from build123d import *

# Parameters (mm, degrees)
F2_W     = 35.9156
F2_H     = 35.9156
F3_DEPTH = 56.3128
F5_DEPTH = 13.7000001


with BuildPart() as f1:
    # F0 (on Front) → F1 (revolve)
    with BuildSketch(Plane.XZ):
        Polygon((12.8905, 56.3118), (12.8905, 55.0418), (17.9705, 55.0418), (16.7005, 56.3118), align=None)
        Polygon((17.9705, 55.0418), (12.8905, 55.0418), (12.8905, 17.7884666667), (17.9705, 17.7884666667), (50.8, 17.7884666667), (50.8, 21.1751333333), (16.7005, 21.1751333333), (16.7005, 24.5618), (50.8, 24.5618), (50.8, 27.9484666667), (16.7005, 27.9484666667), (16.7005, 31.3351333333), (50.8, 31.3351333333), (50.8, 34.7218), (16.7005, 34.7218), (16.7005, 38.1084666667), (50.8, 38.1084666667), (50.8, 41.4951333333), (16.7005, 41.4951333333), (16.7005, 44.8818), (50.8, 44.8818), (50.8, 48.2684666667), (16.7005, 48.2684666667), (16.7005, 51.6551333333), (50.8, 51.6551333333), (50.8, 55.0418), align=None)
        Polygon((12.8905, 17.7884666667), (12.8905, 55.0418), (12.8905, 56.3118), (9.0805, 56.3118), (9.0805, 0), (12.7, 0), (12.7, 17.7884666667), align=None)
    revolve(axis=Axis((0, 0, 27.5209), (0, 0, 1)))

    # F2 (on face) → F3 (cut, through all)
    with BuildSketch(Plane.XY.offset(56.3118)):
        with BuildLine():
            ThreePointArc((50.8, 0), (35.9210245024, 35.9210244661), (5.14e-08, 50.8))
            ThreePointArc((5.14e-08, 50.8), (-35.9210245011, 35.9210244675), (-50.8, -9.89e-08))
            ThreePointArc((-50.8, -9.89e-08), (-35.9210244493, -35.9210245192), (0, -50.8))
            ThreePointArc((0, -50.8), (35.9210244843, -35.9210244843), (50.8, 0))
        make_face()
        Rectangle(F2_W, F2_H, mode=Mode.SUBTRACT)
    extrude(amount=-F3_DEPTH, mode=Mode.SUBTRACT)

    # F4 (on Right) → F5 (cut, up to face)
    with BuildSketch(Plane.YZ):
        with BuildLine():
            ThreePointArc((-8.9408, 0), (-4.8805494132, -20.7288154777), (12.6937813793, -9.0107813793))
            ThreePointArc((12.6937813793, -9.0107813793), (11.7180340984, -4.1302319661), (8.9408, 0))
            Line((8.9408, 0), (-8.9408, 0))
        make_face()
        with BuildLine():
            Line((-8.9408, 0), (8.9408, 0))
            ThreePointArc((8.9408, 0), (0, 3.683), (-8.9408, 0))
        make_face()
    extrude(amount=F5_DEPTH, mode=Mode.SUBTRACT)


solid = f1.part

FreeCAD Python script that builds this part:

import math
import FreeCAD as App
import Part
import Sketcher
Q = App.Units.Quantity

doc = App.newDocument("Part")
body = doc.addObject("PartDesign::Body", "Body")

# Sketch on XZ plane
sketch1 = body.newObject("Sketcher::SketchObject", "Sketch")
sketch1.AttachmentSupport = (doc.getObject("XZ_Plane"), [""])
sketch1.MapMode = "FlatFace"
sketch1.addGeometry(Part.LineSegment(App.Vector(50.8, 17.8, 0), App.Vector(50.8, 21.2, 0)), False)
sketch1.addGeometry(Part.LineSegment(App.Vector(50.8, 21.2, 0), App.Vector(16.7, 21.2, 0)), False)
sketch1.addGeometry(Part.LineSegment(App.Vector(16.7, 21.2, 0), App.Vector(16.7, 24.6, 0)), False)
sketch1.addGeometry(Part.LineSegment(App.Vector(16.7, 24.6, 0), App.Vector(50.8, 24.6, 0)), False)
sketch1.addGeometry(Part.LineSegment(App.Vector(50.8, 24.6, 0), App.Vector(50.8, 27.9, 0)), False)
sketch1.addGeometry(Part.LineSegment(App.Vector(50.8, 27.9, 0), App.Vector(16.7, 27.9, 0)), False)
sketch1.addGeometry(Part.LineSegment(App.Vector(16.7, 27.9, 0), App.Vector(16.7, 31.3, 0)), False)
sketch1.addGeometry(Part.LineSegment(App.Vector(16.7, 31.3, 0), App.Vector(50.8, 31.3, 0)), False)
sketch1.addGeometry(Part.LineSegment(App.Vector(50.8, 31.3, 0), App.Vector(50.8, 34.7, 0)), False)
sketch1.addGeometry(Part.LineSegment(App.Vector(50.8, 34.7, 0), App.Vector(16.7, 34.7, 0)), False)
sketch1.addGeometry(Part.LineSegment(App.Vector(16.7, 34.7, 0), App.Vector(16.7, 38.1, 0)), False)
sketch1.addGeometry(Part.LineSegment(App.Vector(16.7, 38.1, 0), App.Vector(50.8, 38.1, 0)), False)
sketch1.addGeometry(Part.LineSegment(App.Vector(50.8, 38.1, 0), App.Vector(50.8, 41.5, 0)), False)
sketch1.addGeometry(Part.LineSegment(App.Vector(50.8, 41.5, 0), App.Vector(16.7, 41.5, 0)), False)
sketch1.addGeometry(Part.LineSegment(App.Vector(16.7, 41.5, 0), App.Vector(16.7, 44.9, 0)), False)
sketch1.addGeometry(Part.LineSegment(App.Vector(16.7, 44.9, 0), App.Vector(50.8, 44.9, 0)), False)
sketch1.addGeometry(Part.LineSegment(App.Vector(50.8, 44.9, 0), App.Vector(50.8, 48.3, 0)), False)
sketch1.addGeometry(Part.LineSegment(App.Vector(50.8, 48.3, 0), App.Vector(16.7, 48.3, 0)), False)
sketch1.addGeometry(Part.LineSegment(App.Vector(16.7, 48.3, 0), App.Vector(16.7, 51.7, 0)), False)
sketch1.addGeometry(Part.LineSegment(App.Vector(16.7, 51.7, 0), App.Vector(50.8, 51.7, 0)), False)
sketch1.addGeometry(Part.LineSegment(App.Vector(50.8, 51.7, 0), App.Vector(50.8, 55, 0)), False)
sketch1.addGeometry(Part.LineSegment(App.Vector(50.8, 55, 0), App.Vector(18, 55, 0)), False)
sketch1.addGeometry(Part.LineSegment(App.Vector(18, 55, 0), App.Vector(16.7, 56.3, 0)), False)
sketch1.addGeometry(Part.LineSegment(App.Vector(16.7, 56.3, 0), App.Vector(9.1, 56.3, 0)), False)
sketch1.addGeometry(Part.LineSegment(App.Vector(9.1, 56.3, 0), App.Vector(9.1, 0, 0)), False)
sketch1.addGeometry(Part.LineSegment(App.Vector(9.1, 0, 0), App.Vector(12.7, 0, 0)), False)
sketch1.addGeometry(Part.LineSegment(App.Vector(12.7, 0, 0), App.Vector(12.7, 17.8, 0)), False)
sketch1.addGeometry(Part.LineSegment(App.Vector(12.7, 17.8, 0), App.Vector(50.8, 17.8, 0)), False)
sketch1.addConstraint(Sketcher.Constraint("Coincident", 0, 2, 1, 1))
sketch1.addConstraint(Sketcher.Constraint("Coincident", 1, 2, 2, 1))
sketch1.addConstraint(Sketcher.Constraint("Coincident", 2, 2, 3, 1))
sketch1.addConstraint(Sketcher.Constraint("Coincident", 3, 2, 4, 1))
sketch1.addConstraint(Sketcher.Constraint("Coincident", 4, 2, 5, 1))
sketch1.addConstraint(Sketcher.Constraint("Coincident", 5, 2, 6, 1))
sketch1.addConstraint(Sketcher.Constraint("Coincident", 6, 2, 7, 1))
sketch1.addConstraint(Sketcher.Constraint("Coincident", 7, 2, 8, 1))
sketch1.addConstraint(Sketcher.Constraint("Coincident", 8, 2, 9, 1))
sketch1.addConstraint(Sketcher.Constraint("Coincident", 9, 2, 10, 1))
sketch1.addConstraint(Sketcher.Constraint("Coincident", 10, 2, 11, 1))
sketch1.addConstraint(Sketcher.Constraint("Coincident", 11, 2, 12, 1))
sketch1.addConstraint(Sketcher.Constraint("Coincident", 12, 2, 13, 1))
sketch1.addConstraint(Sketcher.Constraint("Coincident", 13, 2, 14, 1))
sketch1.addConstraint(Sketcher.Constraint("Coincident", 14, 2, 15, 1))
sketch1.addConstraint(Sketcher.Constraint("Coincident", 15, 2, 16, 1))
sketch1.addConstraint(Sketcher.Constraint("Coincident", 16, 2, 17, 1))
sketch1.addConstraint(Sketcher.Constraint("Coincident", 17, 2, 18, 1))
sketch1.addConstraint(Sketcher.Constraint("Coincident", 18, 2, 19, 1))
sketch1.addConstraint(Sketcher.Constraint("Coincident", 19, 2, 20, 1))
sketch1.addConstraint(Sketcher.Constraint("Coincident", 20, 2, 21, 1))
sketch1.addConstraint(Sketcher.Constraint("Coincident", 21, 2, 22, 1))
sketch1.addConstraint(Sketcher.Constraint("Coincident", 22, 2, 23, 1))
sketch1.addConstraint(Sketcher.Constraint("Coincident", 23, 2, 24, 1))
sketch1.addConstraint(Sketcher.Constraint("Coincident", 24, 2, 25, 1))
sketch1.addConstraint(Sketcher.Constraint("Coincident", 25, 2, 26, 1))
sketch1.addConstraint(Sketcher.Constraint("Coincident", 26, 2, 27, 1))
sketch1.addConstraint(Sketcher.Constraint("Coincident", 27, 2, 0, 1))
sketch1.addConstraint(Sketcher.Constraint("Vertical", 0))
sketch1.addConstraint(Sketcher.Constraint("Horizontal", 1))
sketch1.addConstraint(Sketcher.Constraint("Vertical", 2))
sketch1.addConstraint(Sketcher.Constraint("Horizontal", 3))
sketch1.addConstraint(Sketcher.Constraint("Vertical", 4))
sketch1.addConstraint(Sketcher.Constraint("Horizontal", 5))
sketch1.addConstraint(Sketcher.Constraint("Vertical", 6))
sketch1.addConstraint(Sketcher.Constraint("Horizontal", 7))
sketch1.addConstraint(Sketcher.Constraint("Vertical", 8))
sketch1.addConstraint(Sketcher.Constraint("Horizontal", 9))
sketch1.addConstraint(Sketcher.Constraint("Vertical", 10))
sketch1.addConstraint(Sketcher.Constraint("Horizontal", 11))
sketch1.addConstraint(Sketcher.Constraint("Vertical", 12))
sketch1.addConstraint(Sketcher.Constraint("Horizontal", 13))
sketch1.addConstraint(Sketcher.Constraint("Vertical", 14))
sketch1.addConstraint(Sketcher.Constraint("Horizontal", 15))
sketch1.addConstraint(Sketcher.Constraint("Vertical", 16))
sketch1.addConstraint(Sketcher.Constraint("Horizontal", 17))
sketch1.addConstraint(Sketcher.Constraint("Vertical", 18))
sketch1.addConstraint(Sketcher.Constraint("Horizontal", 19))
sketch1.addConstraint(Sketcher.Constraint("Vertical", 20))
sketch1.addConstraint(Sketcher.Constraint("Horizontal", 21))
sketch1.addConstraint(Sketcher.Constraint("Horizontal", 23))
sketch1.addConstraint(Sketcher.Constraint("Vertical", 24))
sketch1.addConstraint(Sketcher.Constraint("Horizontal", 25))
sketch1.addConstraint(Sketcher.Constraint("Vertical", 26))
sketch1.addConstraint(Sketcher.Constraint("Horizontal", 27))
sketch1.addConstraint(Sketcher.Constraint("PointOnObject", 24, 2, -1))
sketch1.addConstraint(Sketcher.Constraint("Vertical", 0, 2, 3, 2))
sketch1.addConstraint(Sketcher.Constraint("Vertical", 2, 2, 5, 2))
sketch1.addConstraint(Sketcher.Constraint("Vertical", 4, 2, 7, 2))
sketch1.addConstraint(Sketcher.Constraint("Vertical", 6, 2, 9, 2))
sketch1.addConstraint(Sketcher.Constraint("Vertical", 8, 2, 11, 2))
sketch1.addConstraint(Sketcher.Constraint("Vertical", 10, 2, 13, 2))
sketch1.addConstraint(Sketcher.Constraint("Vertical", 12, 2, 15, 2))
sketch1.addConstraint(Sketcher.Constraint("Vertical", 14, 2, 17, 2))
sketch1.addConstraint(Sketcher.Constraint("Vertical", 16, 2, 19, 2))
sketch1.addConstraint(Sketcher.Constraint("Vertical", 18, 2, 22, 2))
sketch1.addConstraint(Sketcher.Constraint("Equal", 0, 2))
sketch1.addConstraint(Sketcher.Constraint("Equal", 2, 4))
sketch1.addConstraint(Sketcher.Constraint("Equal", 4, 6))
sketch1.addConstraint(Sketcher.Constraint("Equal", 6, 8))
sketch1.addConstraint(Sketcher.Constraint("Equal", 8, 10))
sketch1.addConstraint(Sketcher.Constraint("Equal", 10, 12))
sketch1.addConstraint(Sketcher.Constraint("Equal", 12, 14))
sketch1.addConstraint(Sketcher.Constraint("Equal", 14, 16))
sketch1.addConstraint(Sketcher.Constraint("Equal", 16, 18))
sketch1.addConstraint(Sketcher.Constraint("Equal", 18, 20))
sketch1.addConstraint(Sketcher.Constraint("DistanceX", 23, 2, 23, 1, Q("0.3 in")))
sketch1.addConstraint(Sketcher.Constraint("DistanceX", 27, 1, 27, 2, Q("1.5 in")))
sketch1.addConstraint(Sketcher.Constraint("DistanceX", -1, 1, 0, 2, Q("2 in")))
sketch1.addConstraint(Sketcher.Constraint("Angle", 22, Q("135 deg")))
sketch1.addConstraint(Sketcher.Constraint("DistanceY", 1, 2, 6, 2, Q("0.4 in")))
sketch1.addConstraint(Sketcher.Constraint("DistanceY", 24, 2, 24, 1, Q("2.217 in")))
sketch1.addConstraint(Sketcher.Constraint("DistanceX", 18, 2, 21, 2, Q("0.05 in")))
sketch1.addConstraint(Sketcher.Constraint("DistanceX", 1, 2, 1, 1, Q("1.3425 in")))
revolution = body.newObject("PartDesign::Revolution", "Revolution")
revolution.Profile = sketch1
revolution.ReferenceAxis = (sketch1, ["V_Axis"])
revolution.Angle = 360

# Sketch on XY plane
sketch2 = body.newObject("Sketcher::SketchObject", "Sketch001")
sketch2.AttachmentSupport = (doc.getObject("XY_Plane"), [""])
sketch2.MapMode = "FlatFace"
sketch2.AttachmentOffset = App.Placement(App.Vector(0, 0, 2.217 * 25.4), App.Rotation())
sketch2.addGeometry(Part.Circle(App.Vector(0, 0, 0), App.Vector(0, 0, 1), 51), False)
sketch2.addGeometry(Part.LineSegment(App.Vector(18, -18, 0), App.Vector(-18, -18, 0)), False)
sketch2.addGeometry(Part.LineSegment(App.Vector(-18, -18, 0), App.Vector(-18, 18, 0)), False)
sketch2.addGeometry(Part.LineSegment(App.Vector(-18, 18, 0), App.Vector(18, 18, 0)), False)
sketch2.addGeometry(Part.LineSegment(App.Vector(18, 18, 0), App.Vector(18, -18, 0)), False)
sketch2.addConstraint(Sketcher.Constraint("Coincident", 1, 2, 2, 1))
sketch2.addConstraint(Sketcher.Constraint("Coincident", 2, 2, 3, 1))
sketch2.addConstraint(Sketcher.Constraint("Coincident", 3, 2, 4, 1))
sketch2.addConstraint(Sketcher.Constraint("Coincident", 4, 2, 1, 1))
sketch2.addConstraint(Sketcher.Constraint("Horizontal", 1))
sketch2.addConstraint(Sketcher.Constraint("Vertical", 2))
sketch2.addConstraint(Sketcher.Constraint("Horizontal", 3))
sketch2.addConstraint(Sketcher.Constraint("Vertical", 4))
sketch2.addConstraint(Sketcher.Constraint("Coincident", 0, 3, -1, 1))
sketch2.addConstraint(Sketcher.Constraint("Symmetric", 1, 2, 3, 2, -1, 1))
sketch2.addConstraint(Sketcher.Constraint("Equal", 3, 2))
sketch2.addConstraint(Sketcher.Constraint("Diameter", 0, Q("4 in")))
sketch2.addConstraint(Sketcher.Constraint("DistanceX", 1, 2, 1, 1, Q("1.414 in")))
pocket1 = body.newObject("PartDesign::Pocket", "Pocket")
pocket1.Profile = sketch2
pocket1.Type = "ThroughAll"

# Sketch on YZ plane
sketch3 = body.newObject("Sketcher::SketchObject", "Sketch002")
sketch3.AttachmentSupport = (doc.getObject("YZ_Plane"), [""])
sketch3.MapMode = "FlatFace"
sketch3.addGeometry(Part.ArcOfCircle(Part.Circle(App.Vector(0, -9, 0), App.Vector(0, 0, 1), 13), math.radians(0), math.radians(45)), False)
sketch3.addGeometry(Part.ArcOfCircle(Part.Circle(App.Vector(0, -9, 0), App.Vector(0, 0, 1), 13), math.radians(45), math.radians(360)), False)
sketch3.addConstraint(Sketcher.Constraint("Tangent", 0, 1, 1, 2))
sketch3.addConstraint(Sketcher.Constraint("Coincident", 1, 1, 0, 2))
sketch3.addConstraint(Sketcher.Constraint("PointOnObject", 0, 3, -2))
sketch3.addConstraint(Sketcher.Constraint("PointOnObject", 1, 1, -1))
sketch3.addConstraint(Sketcher.Constraint("Horizontal", 1, 3, 0, 1))
sketch3.addConstraint(Sketcher.Constraint("DistanceX", -1, 1, 1, 1, Q("0.352 in")))
sketch3.addConstraint(Sketcher.Constraint("Radius", 0, Q("12.693781 mm")))
pocket2 = body.newObject("PartDesign::Pocket", "Pocket001")
pocket2.Profile = sketch3
pocket2.Length = 13.7
pocket2.Reversed = True

doc.recompute()
